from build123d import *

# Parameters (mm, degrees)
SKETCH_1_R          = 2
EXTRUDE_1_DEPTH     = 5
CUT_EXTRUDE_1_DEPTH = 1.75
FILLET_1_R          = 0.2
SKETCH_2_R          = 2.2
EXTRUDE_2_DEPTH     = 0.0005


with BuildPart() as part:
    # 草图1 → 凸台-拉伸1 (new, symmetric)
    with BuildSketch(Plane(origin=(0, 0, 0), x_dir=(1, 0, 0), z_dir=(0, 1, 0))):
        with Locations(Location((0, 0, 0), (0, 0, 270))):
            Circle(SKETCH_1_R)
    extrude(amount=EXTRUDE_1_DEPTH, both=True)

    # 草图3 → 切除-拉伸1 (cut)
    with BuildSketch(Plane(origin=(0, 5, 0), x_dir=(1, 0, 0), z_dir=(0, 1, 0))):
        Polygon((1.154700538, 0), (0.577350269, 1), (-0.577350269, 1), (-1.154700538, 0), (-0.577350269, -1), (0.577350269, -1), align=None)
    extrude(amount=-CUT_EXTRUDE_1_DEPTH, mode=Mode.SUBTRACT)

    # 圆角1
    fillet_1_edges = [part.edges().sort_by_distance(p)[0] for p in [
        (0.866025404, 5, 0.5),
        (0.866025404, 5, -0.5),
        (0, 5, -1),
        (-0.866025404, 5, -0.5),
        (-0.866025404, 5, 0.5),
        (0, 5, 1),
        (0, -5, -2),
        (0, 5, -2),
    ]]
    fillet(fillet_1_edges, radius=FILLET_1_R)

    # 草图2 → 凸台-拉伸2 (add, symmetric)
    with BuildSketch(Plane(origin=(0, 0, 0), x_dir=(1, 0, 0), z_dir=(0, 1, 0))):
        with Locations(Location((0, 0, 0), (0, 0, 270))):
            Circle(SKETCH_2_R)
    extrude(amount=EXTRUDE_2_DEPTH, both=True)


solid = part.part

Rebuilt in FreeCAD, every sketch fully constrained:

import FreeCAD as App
import Part
import Sketcher
from FreeCAD import Vector
Q = App.Units.Quantity


def edges_at(feature, points):
    """Names of the edges that pass closest to the given points."""
    edges = feature.Shape.Edges
    near = lambda p: min(range(len(edges)), key=lambda i: edges[i].distToShape(Part.Vertex(*p))[0])
    return sorted({f"Edge{near(p) + 1}" for p in points})


def add_polygon(sketch, points):
    """Adds a closed chain of lines whose ends are joined by coincident constraints."""
    first, n = sketch.GeometryCount, len(points)
    for a, b in zip(points, points[1:] + points[:1]):
        sketch.addGeometry(Part.LineSegment(App.Vector(*a, 0), App.Vector(*b, 0)), False)
    for i in range(n):
        sketch.addConstraint(Sketcher.Constraint("Coincident", first + i, 2, first + (i + 1) % n, 1))

doc = App.newDocument("Part")
body = doc.addObject("PartDesign::Body", "Body")

sketch1 = doc.addObject("Sketcher::SketchObject", "Sketch")
body.addObject(sketch1)
sketch1.AttachmentSupport = (doc.XZ_Plane, [""])
sketch1.MapMode = "FlatFace"
sketch1.addGeometry(Part.Circle(Vector(0, 0, 0), Vector(0, 0, 1), 2), False)
sketch1.addConstraint(Sketcher.Constraint("Coincident", 0, 3, -1, 1))
sketch1.addConstraint(Sketcher.Constraint("Diameter", 0, 4.0))
pad1 = doc.addObject("PartDesign::Pad", "Pad")
body.addObject(pad1)
pad1.Profile = sketch1
pad1.Length = 10
pad1.Midplane = True

sketch2 = doc.addObject("Sketcher::SketchObject", "Sketch001")
body.addObject(sketch2)
sketch2.AttachmentSupport = (doc.XZ_Plane, [""])
sketch2.MapMode = "FlatFace"
sketch2.AttachmentOffset = App.Placement(Vector(0, 0, -5), App.Rotation())
add_polygon(sketch2, [(1.2, 0), (0.6, -1), (-0.6, -1), (-1.2, 0), (-0.6, 1), (0.6, 1)])
sketch2.addConstraint(Sketcher.Constraint("Horizontal", 1))
sketch2.addConstraint(Sketcher.Constraint("Horizontal", 4))
sketch2.addConstraint(Sketcher.Constraint("Symmetric", 0, 2, 3, 2, -1, 1))
sketch2.addConstraint(Sketcher.Constraint("Symmetric", 2, 2, 5, 2, -1, 1))
sketch2.addConstraint(Sketcher.Constraint("PointOnObject", 2, 2, -1))
sketch2.addConstraint(Sketcher.Constraint("Parallel", 2, 5))
sketch2.addConstraint(Sketcher.Constraint("Vertical", 1, 2, 3, 2))
sketch2.addConstraint(Sketcher.Constraint("Angle", 0, Q("-120 deg")))
sketch2.addConstraint(Sketcher.Constraint("DistanceY", 0, 2, -1, 1, 1.0))
sketch2.addConstraint(Sketcher.Constraint("DistanceX", 1, 2, 1, 1, 1.154701))
pocket1 = doc.addObject("PartDesign::Pocket", "Pocket")
body.addObject(pocket1)
pocket1.Profile = sketch2
pocket1.Length = 1.75
pocket1.Reversed = True
doc.recompute()

fillet = doc.addObject("PartDesign::Fillet", "Fillet")
body.addObject(fillet)
fillet.Base = (pocket1, edges_at(pocket1, [
    (0.866, 5, 0.5),
    (0.866, 5, -0.5),
    (0, 5, -1),
    (-0.866, 5, -0.5),
    (-0.866, 5, 0.5),
    (0, 5, 1),
    (0, -5, -2),
    (0, 5, -2),
]))
fillet.Radius = 0.2

sketch3 = doc.addObject("Sketcher::SketchObject", "Sketch002")
body.addObject(sketch3)
sketch3.AttachmentSupport = (doc.XZ_Plane, [""])
sketch3.MapMode = "FlatFace"
sketch3.addGeometry(Part.Circle(Vector(0, 0, 0), Vector(0, 0, 1), 2.2), False)
sketch3.addConstraint(Sketcher.Constraint("Coincident", 0, 3, -1, 1))
sketch3.addConstraint(Sketcher.Constraint("Diameter", 0, 4.4))
pad2 = doc.addObject("PartDesign::Pad", "Pad001")
body.addObject(pad2)
pad2.Profile = sketch3
pad2.Length = 0.001
pad2.Midplane = True

doc.recompute()
